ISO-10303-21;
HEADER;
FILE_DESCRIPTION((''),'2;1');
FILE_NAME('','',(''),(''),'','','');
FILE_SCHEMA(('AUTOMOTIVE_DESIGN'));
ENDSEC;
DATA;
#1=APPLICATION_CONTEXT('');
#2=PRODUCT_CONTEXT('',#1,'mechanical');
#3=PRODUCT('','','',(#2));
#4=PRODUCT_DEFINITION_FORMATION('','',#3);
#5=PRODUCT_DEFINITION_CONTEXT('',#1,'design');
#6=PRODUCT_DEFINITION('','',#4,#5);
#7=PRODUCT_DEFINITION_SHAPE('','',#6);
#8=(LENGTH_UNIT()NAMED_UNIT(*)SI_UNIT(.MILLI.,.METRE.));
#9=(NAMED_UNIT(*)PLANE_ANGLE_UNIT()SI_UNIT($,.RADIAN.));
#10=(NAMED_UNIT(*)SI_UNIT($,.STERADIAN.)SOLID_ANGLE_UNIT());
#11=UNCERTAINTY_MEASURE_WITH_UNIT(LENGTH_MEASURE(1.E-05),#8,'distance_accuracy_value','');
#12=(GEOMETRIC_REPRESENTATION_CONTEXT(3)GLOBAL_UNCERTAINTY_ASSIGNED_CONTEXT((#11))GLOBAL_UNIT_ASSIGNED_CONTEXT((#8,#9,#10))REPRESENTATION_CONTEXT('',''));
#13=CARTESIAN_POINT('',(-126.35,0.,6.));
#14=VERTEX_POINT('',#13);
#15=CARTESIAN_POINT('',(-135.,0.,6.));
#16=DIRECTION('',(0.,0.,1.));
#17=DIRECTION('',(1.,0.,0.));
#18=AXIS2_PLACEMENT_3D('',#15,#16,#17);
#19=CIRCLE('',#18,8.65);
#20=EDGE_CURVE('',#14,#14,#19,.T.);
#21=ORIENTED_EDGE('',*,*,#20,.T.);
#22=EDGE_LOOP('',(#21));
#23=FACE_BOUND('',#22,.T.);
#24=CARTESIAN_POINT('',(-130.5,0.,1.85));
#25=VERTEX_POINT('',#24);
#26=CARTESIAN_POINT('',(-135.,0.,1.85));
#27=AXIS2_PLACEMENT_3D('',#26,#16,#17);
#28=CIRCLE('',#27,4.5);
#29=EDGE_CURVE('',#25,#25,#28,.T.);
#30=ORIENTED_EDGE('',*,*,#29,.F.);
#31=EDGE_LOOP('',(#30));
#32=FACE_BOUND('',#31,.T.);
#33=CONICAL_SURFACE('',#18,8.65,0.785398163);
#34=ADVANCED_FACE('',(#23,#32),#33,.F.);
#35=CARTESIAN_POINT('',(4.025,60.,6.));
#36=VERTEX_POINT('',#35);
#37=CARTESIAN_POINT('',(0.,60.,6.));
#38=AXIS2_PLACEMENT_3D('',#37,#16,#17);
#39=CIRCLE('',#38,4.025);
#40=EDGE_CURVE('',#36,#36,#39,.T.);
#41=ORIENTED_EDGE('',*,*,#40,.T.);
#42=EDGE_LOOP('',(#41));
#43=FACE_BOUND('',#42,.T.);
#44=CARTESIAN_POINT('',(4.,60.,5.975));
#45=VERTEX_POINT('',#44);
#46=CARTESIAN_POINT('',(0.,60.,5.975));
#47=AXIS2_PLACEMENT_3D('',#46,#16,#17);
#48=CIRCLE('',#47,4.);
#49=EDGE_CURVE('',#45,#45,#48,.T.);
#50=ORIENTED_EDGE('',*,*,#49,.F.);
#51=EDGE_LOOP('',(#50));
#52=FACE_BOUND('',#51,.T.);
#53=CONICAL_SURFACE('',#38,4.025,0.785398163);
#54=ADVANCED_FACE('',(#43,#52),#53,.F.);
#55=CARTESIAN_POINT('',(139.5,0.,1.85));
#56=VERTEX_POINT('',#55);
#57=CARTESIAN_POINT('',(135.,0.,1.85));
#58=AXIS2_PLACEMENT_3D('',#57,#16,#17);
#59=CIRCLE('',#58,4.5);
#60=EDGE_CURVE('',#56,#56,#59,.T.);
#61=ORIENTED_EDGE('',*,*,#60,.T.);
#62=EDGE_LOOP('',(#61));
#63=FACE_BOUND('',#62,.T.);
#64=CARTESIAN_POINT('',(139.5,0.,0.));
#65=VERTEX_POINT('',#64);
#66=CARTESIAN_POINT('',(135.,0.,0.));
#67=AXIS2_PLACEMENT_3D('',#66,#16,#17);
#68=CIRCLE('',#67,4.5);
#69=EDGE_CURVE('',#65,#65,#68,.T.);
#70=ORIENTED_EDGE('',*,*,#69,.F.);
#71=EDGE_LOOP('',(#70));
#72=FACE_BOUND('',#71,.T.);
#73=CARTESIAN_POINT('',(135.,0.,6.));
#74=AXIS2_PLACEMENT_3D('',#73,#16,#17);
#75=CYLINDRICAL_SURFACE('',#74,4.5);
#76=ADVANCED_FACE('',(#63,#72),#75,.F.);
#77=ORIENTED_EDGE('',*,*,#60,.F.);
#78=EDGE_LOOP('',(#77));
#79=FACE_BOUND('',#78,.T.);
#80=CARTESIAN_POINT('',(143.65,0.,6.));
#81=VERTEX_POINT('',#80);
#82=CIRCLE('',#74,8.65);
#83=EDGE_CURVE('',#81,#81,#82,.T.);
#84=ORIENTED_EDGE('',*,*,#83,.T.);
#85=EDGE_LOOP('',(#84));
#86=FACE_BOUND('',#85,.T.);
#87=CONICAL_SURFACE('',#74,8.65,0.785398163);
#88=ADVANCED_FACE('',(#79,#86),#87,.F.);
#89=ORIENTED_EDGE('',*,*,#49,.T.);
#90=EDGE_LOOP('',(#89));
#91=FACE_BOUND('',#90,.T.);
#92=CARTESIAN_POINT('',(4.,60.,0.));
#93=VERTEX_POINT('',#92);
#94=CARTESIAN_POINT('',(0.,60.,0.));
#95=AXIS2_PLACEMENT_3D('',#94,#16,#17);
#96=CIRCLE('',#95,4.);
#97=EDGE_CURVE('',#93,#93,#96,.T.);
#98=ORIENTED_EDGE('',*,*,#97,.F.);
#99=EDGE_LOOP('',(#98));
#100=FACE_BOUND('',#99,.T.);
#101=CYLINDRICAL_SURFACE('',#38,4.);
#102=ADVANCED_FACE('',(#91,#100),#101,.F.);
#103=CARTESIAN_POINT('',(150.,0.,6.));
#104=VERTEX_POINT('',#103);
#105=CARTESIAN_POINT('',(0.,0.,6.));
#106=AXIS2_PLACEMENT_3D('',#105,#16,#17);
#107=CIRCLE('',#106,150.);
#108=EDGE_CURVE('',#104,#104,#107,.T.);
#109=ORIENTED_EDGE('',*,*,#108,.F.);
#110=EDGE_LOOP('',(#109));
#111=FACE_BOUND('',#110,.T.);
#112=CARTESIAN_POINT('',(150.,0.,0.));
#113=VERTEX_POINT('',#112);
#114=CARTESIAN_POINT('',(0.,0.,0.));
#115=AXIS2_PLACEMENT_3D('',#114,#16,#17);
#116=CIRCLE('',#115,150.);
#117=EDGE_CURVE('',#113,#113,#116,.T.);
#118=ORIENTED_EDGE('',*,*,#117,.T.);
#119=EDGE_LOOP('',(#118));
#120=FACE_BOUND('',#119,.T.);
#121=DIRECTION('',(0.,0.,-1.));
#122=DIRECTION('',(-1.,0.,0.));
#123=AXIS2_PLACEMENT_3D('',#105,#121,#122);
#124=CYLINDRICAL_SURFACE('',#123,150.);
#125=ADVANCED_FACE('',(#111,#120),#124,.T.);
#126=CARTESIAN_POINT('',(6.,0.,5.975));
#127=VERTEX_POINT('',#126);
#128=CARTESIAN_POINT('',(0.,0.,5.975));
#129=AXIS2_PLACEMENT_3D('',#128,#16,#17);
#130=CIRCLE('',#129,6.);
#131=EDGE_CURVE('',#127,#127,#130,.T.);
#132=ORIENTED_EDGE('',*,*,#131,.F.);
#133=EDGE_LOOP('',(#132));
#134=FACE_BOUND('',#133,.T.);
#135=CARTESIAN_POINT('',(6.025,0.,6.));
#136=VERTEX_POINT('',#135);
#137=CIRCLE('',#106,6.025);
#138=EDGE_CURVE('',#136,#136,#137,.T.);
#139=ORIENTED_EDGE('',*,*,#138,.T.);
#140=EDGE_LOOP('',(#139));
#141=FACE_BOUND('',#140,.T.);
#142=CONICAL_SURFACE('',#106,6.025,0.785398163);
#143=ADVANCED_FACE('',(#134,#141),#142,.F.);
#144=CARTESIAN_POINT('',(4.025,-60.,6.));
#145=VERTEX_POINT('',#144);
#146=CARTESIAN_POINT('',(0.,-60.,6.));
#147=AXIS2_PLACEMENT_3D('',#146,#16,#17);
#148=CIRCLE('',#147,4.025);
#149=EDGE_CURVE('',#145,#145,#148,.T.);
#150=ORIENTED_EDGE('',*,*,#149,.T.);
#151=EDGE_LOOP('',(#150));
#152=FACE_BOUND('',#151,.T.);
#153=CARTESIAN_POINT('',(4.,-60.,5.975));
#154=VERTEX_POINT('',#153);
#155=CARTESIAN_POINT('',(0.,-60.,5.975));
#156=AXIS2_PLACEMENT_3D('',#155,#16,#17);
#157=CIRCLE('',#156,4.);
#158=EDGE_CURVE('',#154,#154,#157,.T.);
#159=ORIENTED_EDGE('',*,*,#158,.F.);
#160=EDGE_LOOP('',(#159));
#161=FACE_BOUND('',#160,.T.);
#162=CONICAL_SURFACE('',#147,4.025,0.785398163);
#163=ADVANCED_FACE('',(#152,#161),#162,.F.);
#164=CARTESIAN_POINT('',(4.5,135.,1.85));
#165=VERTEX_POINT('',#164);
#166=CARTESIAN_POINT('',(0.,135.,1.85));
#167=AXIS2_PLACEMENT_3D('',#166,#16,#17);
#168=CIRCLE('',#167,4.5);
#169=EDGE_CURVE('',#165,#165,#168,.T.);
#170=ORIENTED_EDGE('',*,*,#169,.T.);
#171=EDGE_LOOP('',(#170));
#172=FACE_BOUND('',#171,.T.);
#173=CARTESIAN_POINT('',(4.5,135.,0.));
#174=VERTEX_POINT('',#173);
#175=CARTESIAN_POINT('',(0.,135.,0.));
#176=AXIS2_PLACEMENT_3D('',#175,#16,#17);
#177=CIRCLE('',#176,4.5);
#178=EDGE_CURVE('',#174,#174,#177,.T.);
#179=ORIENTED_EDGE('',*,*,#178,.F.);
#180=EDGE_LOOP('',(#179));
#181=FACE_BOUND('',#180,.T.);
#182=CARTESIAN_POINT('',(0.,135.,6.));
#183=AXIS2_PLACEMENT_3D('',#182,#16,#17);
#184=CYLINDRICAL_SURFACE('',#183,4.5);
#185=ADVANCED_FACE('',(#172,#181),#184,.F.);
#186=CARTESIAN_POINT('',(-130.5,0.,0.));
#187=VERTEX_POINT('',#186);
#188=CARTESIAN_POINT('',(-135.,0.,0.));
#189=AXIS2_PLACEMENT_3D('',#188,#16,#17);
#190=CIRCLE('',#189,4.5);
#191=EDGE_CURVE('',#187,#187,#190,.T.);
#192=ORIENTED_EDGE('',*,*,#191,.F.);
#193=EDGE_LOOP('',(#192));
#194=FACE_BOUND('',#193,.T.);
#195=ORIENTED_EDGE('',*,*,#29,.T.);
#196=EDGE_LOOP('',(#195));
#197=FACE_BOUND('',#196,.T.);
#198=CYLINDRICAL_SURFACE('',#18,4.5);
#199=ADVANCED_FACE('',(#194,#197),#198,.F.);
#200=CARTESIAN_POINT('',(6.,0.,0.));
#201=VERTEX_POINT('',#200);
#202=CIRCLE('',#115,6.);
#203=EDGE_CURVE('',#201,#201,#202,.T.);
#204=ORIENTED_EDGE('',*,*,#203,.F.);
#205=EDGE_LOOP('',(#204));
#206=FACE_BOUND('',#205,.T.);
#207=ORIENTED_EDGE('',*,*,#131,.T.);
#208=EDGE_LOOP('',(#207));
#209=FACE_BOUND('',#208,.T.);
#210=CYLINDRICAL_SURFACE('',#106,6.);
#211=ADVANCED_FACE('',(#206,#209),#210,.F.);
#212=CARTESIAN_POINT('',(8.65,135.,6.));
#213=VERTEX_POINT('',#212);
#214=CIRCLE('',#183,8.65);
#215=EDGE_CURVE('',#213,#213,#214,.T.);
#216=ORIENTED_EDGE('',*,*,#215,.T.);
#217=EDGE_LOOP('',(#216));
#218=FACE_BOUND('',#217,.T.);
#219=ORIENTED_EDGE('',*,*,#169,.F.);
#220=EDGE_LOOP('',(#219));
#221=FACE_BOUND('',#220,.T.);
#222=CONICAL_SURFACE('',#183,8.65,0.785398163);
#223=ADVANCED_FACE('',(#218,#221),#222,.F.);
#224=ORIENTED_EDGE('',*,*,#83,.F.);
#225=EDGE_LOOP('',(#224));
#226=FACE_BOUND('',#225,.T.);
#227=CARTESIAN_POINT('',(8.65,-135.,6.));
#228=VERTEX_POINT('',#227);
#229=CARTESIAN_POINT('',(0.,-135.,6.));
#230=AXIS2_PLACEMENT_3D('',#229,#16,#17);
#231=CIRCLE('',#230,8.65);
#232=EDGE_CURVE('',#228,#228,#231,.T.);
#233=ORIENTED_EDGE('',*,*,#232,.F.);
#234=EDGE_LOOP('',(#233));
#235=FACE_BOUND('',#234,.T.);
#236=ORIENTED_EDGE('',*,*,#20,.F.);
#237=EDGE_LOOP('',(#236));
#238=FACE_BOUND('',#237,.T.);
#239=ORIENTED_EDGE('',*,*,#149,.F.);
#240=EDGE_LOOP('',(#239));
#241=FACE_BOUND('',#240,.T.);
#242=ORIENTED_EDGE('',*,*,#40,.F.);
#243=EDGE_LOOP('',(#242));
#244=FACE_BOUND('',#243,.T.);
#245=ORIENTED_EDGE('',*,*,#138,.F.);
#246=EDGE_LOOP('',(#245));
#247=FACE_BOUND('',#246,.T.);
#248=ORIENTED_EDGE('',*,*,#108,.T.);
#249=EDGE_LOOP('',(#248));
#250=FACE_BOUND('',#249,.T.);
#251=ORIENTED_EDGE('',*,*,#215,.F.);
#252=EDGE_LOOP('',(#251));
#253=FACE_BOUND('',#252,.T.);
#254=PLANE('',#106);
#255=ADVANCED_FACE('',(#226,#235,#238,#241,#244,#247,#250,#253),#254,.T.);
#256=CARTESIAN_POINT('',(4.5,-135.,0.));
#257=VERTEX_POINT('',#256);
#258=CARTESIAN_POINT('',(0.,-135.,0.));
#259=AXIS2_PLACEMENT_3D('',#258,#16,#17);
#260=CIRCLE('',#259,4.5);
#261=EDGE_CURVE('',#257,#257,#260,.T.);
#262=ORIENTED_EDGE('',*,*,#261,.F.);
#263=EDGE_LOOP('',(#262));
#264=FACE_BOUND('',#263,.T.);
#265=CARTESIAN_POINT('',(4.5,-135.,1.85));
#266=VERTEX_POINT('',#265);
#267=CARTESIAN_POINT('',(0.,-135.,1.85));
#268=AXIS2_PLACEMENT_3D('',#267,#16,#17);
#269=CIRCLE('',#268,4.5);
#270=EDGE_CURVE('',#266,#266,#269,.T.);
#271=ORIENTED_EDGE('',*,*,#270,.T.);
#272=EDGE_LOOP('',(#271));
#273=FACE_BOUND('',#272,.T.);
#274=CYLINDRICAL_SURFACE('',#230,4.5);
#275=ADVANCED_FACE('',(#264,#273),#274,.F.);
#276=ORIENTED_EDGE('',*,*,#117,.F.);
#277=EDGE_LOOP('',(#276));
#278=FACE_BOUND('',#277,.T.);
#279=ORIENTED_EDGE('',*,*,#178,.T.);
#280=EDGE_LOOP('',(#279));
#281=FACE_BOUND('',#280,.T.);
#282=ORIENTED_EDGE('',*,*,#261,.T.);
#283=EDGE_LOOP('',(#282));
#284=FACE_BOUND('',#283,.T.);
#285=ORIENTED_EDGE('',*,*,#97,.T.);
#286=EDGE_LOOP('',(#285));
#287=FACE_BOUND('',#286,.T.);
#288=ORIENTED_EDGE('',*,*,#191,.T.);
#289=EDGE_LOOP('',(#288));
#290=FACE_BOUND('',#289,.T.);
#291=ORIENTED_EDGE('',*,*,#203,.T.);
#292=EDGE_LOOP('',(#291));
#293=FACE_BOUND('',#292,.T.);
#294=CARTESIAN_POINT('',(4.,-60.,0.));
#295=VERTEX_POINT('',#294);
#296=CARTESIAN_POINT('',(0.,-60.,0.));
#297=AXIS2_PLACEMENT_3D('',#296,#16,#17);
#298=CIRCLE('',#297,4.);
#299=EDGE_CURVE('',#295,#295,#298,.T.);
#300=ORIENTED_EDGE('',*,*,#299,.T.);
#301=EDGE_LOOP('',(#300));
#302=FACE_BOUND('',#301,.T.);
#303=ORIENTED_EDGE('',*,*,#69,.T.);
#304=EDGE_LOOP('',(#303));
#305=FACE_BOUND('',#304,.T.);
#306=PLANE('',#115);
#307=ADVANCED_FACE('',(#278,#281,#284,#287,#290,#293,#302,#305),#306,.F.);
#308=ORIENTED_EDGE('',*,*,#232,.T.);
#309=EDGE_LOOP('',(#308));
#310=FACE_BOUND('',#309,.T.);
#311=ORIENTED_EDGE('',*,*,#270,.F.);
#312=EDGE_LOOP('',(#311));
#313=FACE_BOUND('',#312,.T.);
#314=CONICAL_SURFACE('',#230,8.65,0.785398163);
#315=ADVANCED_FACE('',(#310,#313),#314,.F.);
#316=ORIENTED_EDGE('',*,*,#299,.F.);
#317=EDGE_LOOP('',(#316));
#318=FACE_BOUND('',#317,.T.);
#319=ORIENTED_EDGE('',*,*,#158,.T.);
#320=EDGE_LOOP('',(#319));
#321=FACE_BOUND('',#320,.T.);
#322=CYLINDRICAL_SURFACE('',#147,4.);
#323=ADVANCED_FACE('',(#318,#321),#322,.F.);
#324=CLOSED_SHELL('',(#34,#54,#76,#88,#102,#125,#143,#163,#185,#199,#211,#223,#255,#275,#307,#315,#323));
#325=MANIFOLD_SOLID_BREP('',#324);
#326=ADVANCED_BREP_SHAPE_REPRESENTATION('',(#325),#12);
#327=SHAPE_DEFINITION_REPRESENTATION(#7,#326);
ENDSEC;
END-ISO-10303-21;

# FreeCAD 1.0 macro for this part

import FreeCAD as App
import Part
import Sketcher
Q = App.Units.Quantity


def add_polygon(sketch, points):
    """Adds a closed chain of lines whose ends are joined by coincident constraints."""
    first, n = sketch.GeometryCount, len(points)
    for a, b in zip(points, points[1:] + points[:1]):
        sketch.addGeometry(Part.LineSegment(App.Vector(*a, 0), App.Vector(*b, 0)), False)
    for i in range(n):
        sketch.addConstraint(Sketcher.Constraint("Coincident", first + i, 2, first + (i + 1) % n, 1))

doc = App.newDocument("Part")
body = doc.addObject("PartDesign::Body", "Body")

sketch1 = body.newObject("Sketcher::SketchObject", "Sketch")
sketch1.AttachmentSupport = (doc.getObject("XY_Plane"), [""])
sketch1.MapMode = "FlatFace"
sketch1.addGeometry(Part.Circle(App.Vector(0, 0, 0), App.Vector(0, 0, 1), 150), False)
sketch1.addConstraint(Sketcher.Constraint("Coincident", 0, 3, -1, 1))
sketch1.addConstraint(Sketcher.Constraint("Diameter", 0, Q("300 mm")))
pad1 = body.newObject("PartDesign::Pad", "Pad")
pad1.Profile = sketch1
pad1.Length = 6

sketch2 = body.newObject("Sketcher::SketchObject", "Sketch001")
sketch2.AttachmentSupport = (doc.getObject("XY_Plane"), [""])
sketch2.MapMode = "FlatFace"
sketch2.AttachmentOffset = App.Placement(App.Vector(0, 0, 6), App.Rotation())
sketch2.addGeometry(Part.Circle(App.Vector(0, 60, 0), App.Vector(0, 0, 1), 4), False)
sketch2.addGeometry(Part.Circle(App.Vector(0, -60, 0), App.Vector(0, 0, 1), 4), False)
sketch2.addConstraint(Sketcher.Constraint("Equal", 0, 1))
sketch2.addConstraint(Sketcher.Constraint("Symmetric", 0, 3, 1, 3, -1, 1))
sketch2.addConstraint(Sketcher.Constraint("PointOnObject", 0, 3, -2))
sketch2.addConstraint(Sketcher.Constraint("Diameter", 0, Q("8 mm")))
sketch2.addConstraint(Sketcher.Constraint("DistanceY", -1, 1, 0, 3, Q("60 mm")))
doc.recompute()
hole = body.newObject("PartDesign::Hole", "Hole")
hole.Profile = sketch2
hole.ThreadType = "None"
hole.Diameter = 8
hole.DepthType = "ThroughAll"
hole.HoleCutType = "Countersink"
hole.HoleCutDiameter = 8.05
hole.HoleCutCountersinkAngle = 90

sketch3 = body.newObject("Sketcher::SketchObject", "Sketch002")
sketch3.AttachmentSupport = (doc.getObject("YZ_Plane"), [""])
sketch3.MapMode = "FlatFace"
add_polygon(sketch3, [(0, 0), (0, 6), (-6.025, 6), (-6, 5.975), (-6, 0)])
sketch3.addConstraint(Sketcher.Constraint("Vertical", 0))
sketch3.addConstraint(Sketcher.Constraint("Horizontal", 1))
sketch3.addConstraint(Sketcher.Constraint("Vertical", 3))
sketch3.addConstraint(Sketcher.Constraint("Horizontal", 4))
sketch3.addConstraint(Sketcher.Constraint("Coincident", 4, 2, -1, 1))
sketch3.addConstraint(Sketcher.Constraint("Equal", 4, 0))
sketch3.addConstraint(Sketcher.Constraint("DistanceX", 4, 1, 4, 2, Q("6 mm")))
sketch3.addConstraint(Sketcher.Constraint("Angle", 2, Q("-45 deg")))
sketch3.addConstraint(Sketcher.Constraint("DistanceX", 1, 2, 1, 1, Q("6.025 mm")))
groove = body.newObject("PartDesign::Groove", "Groove")
groove.Profile = sketch3
groove.ReferenceAxis = (sketch3, ["V_Axis"])
groove.Angle = 360

sketch4 = body.newObject("Sketcher::SketchObject", "Sketch003")
sketch4.AttachmentSupport = (doc.getObject("YZ_Plane"), [""])
sketch4.MapMode = "FlatFace"
add_polygon(sketch4, [(135, 0), (135, 6), (126.3, 6), (130.5, 1.9), (130.5, 0)])
sketch4.addGeometry(Part.LineSegment(App.Vector(135, 6, 0), App.Vector(135, 0, 0)), True)
sketch4.addConstraint(Sketcher.Constraint("Vertical", 0))
sketch4.addConstraint(Sketcher.Constraint("Horizontal", 1))
sketch4.addConstraint(Sketcher.Constraint("Vertical", 3))
sketch4.addConstraint(Sketcher.Constraint("Horizontal", 4))
sketch4.addConstraint(Sketcher.Constraint("Vertical", 5))
sketch4.addConstraint(Sketcher.Constraint("Coincident", 5, 1, 0, 2))
sketch4.addConstraint(Sketcher.Constraint("PointOnObject", 3, 2, -1))
sketch4.addConstraint(Sketcher.Constraint("PointOnObject", 5, 2, -1))
sketch4.addConstraint(Sketcher.Constraint("DistanceY", 0, 1, 0, 2, Q("6 mm")))
sketch4.addConstraint(Sketcher.Constraint("Angle", 2, Q("-45 deg")))
sketch4.addConstraint(Sketcher.Constraint("DistanceX", 4, 1, 4, 2, Q("4.5 mm")))
sketch4.addConstraint(Sketcher.Constraint("DistanceX", -1, 1, 0, 2, Q("135 mm")))
sketch4.addConstraint(Sketcher.Constraint("DistanceX", 1, 2, 1, 1, Q("8.65 mm")))
groove2 = body.newObject("PartDesign::Groove", "Groove001")
groove2.Profile = sketch4
groove2.ReferenceAxis = (sketch4, ["Axis0"])
groove2.Angle = 360
doc.recompute()

datumline = body.newObject("PartDesign::Line", "DatumLine")
datumline.Placement = App.Placement(App.Vector(0, 0, 0), App.Rotation(App.Vector(0, 0, 1), App.Vector(0.707106781, -0.707106781, 0)))
linearpattern = body.newObject("PartDesign::LinearPattern", "LinearPattern")
linearpattern.Originals = [groove2]
linearpattern.Direction = (datumline, [""])
linearpattern.Mode = "offset"
linearpattern.Offset = 190.918831
linearpattern.Occurrences = 2
body.Tip = linearpattern
doc.recompute()

linearpattern2 = body.newObject("PartDesign::LinearPattern", "LinearPattern001")
linearpattern2.Originals = [groove2]
linearpattern2.Direction = (doc.getObject("Y_Axis"), [""])
linearpattern2.Mode = "offset"
linearpattern2.Offset = 270
linearpattern2.Occurrences = 2
linearpattern2.Reversed = True
body.Tip = linearpattern2
doc.recompute()

datumline2 = body.newObject("PartDesign::Line", "DatumLine001")
datumline2.Placement = App.Placement(App.Vector(0, 0, 0), App.Rotation(App.Vector(0, 0, 1), App.Vector(-0.707106781, -0.707106781, 0)))
linearpattern3 = body.newObject("PartDesign::LinearPattern", "LinearPattern002")
linearpattern3.Originals = [groove2]
linearpattern3.Direction = (datumline2, [""])
linearpattern3.Mode = "offset"
linearpattern3.Offset = 190.918831
linearpattern3.Occurrences = 2
body.Tip = linearpattern3

doc.recompute()
